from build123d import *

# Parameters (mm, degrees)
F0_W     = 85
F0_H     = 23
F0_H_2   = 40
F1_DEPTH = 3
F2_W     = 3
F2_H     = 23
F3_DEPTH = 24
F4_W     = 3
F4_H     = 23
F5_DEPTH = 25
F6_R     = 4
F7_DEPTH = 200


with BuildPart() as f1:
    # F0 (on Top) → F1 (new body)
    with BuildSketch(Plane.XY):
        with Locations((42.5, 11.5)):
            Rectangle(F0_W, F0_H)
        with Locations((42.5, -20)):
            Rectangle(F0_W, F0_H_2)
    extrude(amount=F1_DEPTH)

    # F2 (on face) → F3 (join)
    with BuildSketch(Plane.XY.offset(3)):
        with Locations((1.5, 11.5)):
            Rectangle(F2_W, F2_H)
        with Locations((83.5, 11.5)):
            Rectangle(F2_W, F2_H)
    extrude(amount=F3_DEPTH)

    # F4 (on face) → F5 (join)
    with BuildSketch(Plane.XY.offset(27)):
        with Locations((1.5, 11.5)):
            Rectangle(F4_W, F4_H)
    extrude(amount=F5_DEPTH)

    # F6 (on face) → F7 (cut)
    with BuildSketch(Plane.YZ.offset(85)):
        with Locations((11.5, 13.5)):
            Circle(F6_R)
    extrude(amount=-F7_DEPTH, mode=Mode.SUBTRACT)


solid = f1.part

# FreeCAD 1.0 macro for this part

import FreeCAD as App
import Part
import Sketcher
Q = App.Units.Quantity


def add_polygon(sketch, points):
    """Adds a closed chain of lines whose ends are joined by coincident constraints."""
    first, n = sketch.GeometryCount, len(points)
    for a, b in zip(points, points[1:] + points[:1]):
        sketch.addGeometry(Part.LineSegment(App.Vector(*a, 0), App.Vector(*b, 0)), False)
    for i in range(n):
        sketch.addConstraint(Sketcher.Constraint("Coincident", first + i, 2, first + (i + 1) % n, 1))

doc = App.newDocument("Part")
body = doc.addObject("PartDesign::Body", "Body")

# Sketch on XY plane
sketch1 = doc.addObject("Sketcher::SketchObject", "Sketch")
body.addObject(sketch1)
sketch1.AttachmentSupport = (doc.XY_Plane, [""])
sketch1.MapMode = "FlatFace"
add_polygon(sketch1, [(0, 23), (0, -40), (85, -40), (85, 23)])  # lines 0-3
sketch1.addConstraint(Sketcher.Constraint("Vertical", 0))
sketch1.addConstraint(Sketcher.Constraint("Horizontal", 1))
sketch1.addConstraint(Sketcher.Constraint("Vertical", 2))
sketch1.addConstraint(Sketcher.Constraint("Horizontal", 3))
sketch1.addConstraint(Sketcher.Constraint("PointOnObject", 0, 2, -2))
sketch1.addConstraint(Sketcher.Constraint("DistanceX", 1, 1, 1, 2, Q("85 mm")))
sketch1.addConstraint(Sketcher.Constraint("DistanceY", 0, 2, 0, 1, Q("63 mm")))
sketch1.addConstraint(Sketcher.Constraint("DistanceY", 0, 2, -1, 1, Q("40 mm")))
pad1 = doc.addObject("PartDesign::Pad", "Pad")
body.addObject(pad1)
pad1.Profile = sketch1
pad1.Length = 3

# Sketch on XY plane
sketch2 = doc.addObject("Sketcher::SketchObject", "Sketch001")
body.addObject(sketch2)
sketch2.AttachmentSupport = (doc.XY_Plane, [""])
sketch2.MapMode = "FlatFace"
sketch2.AttachmentOffset = App.Placement(App.Vector(0, 0, 3), App.Rotation())
add_polygon(sketch2, [(0, 23), (0, 0), (3, 0), (3, 23)])  # lines 0-3
add_polygon(sketch2, [(82, 23), (82, 0), (85, 0), (85, 23)])  # lines 4-7
sketch2.addConstraint(Sketcher.Constraint("Vertical", 0))
sketch2.addConstraint(Sketcher.Constraint("Horizontal", 1))
sketch2.addConstraint(Sketcher.Constraint("Vertical", 2))
sketch2.addConstraint(Sketcher.Constraint("Horizontal", 3))
sketch2.addConstraint(Sketcher.Constraint("Vertical", 4))
sketch2.addConstraint(Sketcher.Constraint("Horizontal", 5))
sketch2.addConstraint(Sketcher.Constraint("Vertical", 6))
sketch2.addConstraint(Sketcher.Constraint("Horizontal", 7))
sketch2.addConstraint(Sketcher.Constraint("Coincident", 0, 2, -1, 1))
sketch2.addConstraint(Sketcher.Constraint("PointOnObject", 4, 2, -1))
sketch2.addConstraint(Sketcher.Constraint("Horizontal", 3, 2, 6, 2))
sketch2.addConstraint(Sketcher.Constraint("Equal", 3, 5))
sketch2.addConstraint(Sketcher.Constraint("DistanceX", 1, 1, 1, 2, Q("3 mm")))
sketch2.addConstraint(Sketcher.Constraint("DistanceY", 0, 2, 0, 1, Q("23 mm")))
sketch2.addConstraint(Sketcher.Constraint("DistanceX", -1, 1, 4, 2, Q("82 mm")))
pad2 = doc.addObject("PartDesign::Pad", "Pad001")
body.addObject(pad2)
pad2.Profile = sketch2
pad2.Length = 24

# Sketch on XY plane
sketch3 = doc.addObject("Sketcher::SketchObject", "Sketch002")
body.addObject(sketch3)
sketch3.AttachmentSupport = (doc.XY_Plane, [""])
sketch3.MapMode = "FlatFace"
sketch3.AttachmentOffset = App.Placement(App.Vector(0, 0, 27), App.Rotation())
add_polygon(sketch3, [(0, 23), (0, 0), (3, 0), (3, 23)])  # lines 0-3
sketch3.addConstraint(Sketcher.Constraint("Vertical", 0))
sketch3.addConstraint(Sketcher.Constraint("Horizontal", 1))
sketch3.addConstraint(Sketcher.Constraint("Vertical", 2))
sketch3.addConstraint(Sketcher.Constraint("Horizontal", 3))
sketch3.addConstraint(Sketcher.Constraint("Coincident", 0, 2, -1, 1))
sketch3.addConstraint(Sketcher.Constraint("DistanceX", 1, 1, 1, 2, Q("3 mm")))
sketch3.addConstraint(Sketcher.Constraint("DistanceY", 0, 2, 0, 1, Q("23 mm")))
pad3 = doc.addObject("PartDesign::Pad", "Pad002")
body.addObject(pad3)
pad3.Profile = sketch3
pad3.Length = 25

# Sketch on YZ plane
sketch4 = doc.addObject("Sketcher::SketchObject", "Sketch003")
body.addObject(sketch4)
sketch4.AttachmentSupport = (doc.YZ_Plane, [""])
sketch4.MapMode = "FlatFace"
sketch4.AttachmentOffset = App.Placement(App.Vector(0, 0, 85), App.Rotation())
sketch4.addGeometry(Part.Circle(App.Vector(11.5, 13.5, 0), App.Vector(0, 0, 1), 4), False)
sketch4.addConstraint(Sketcher.Constraint("Diameter", 0, Q("8 mm")))
sketch4.addConstraint(Sketcher.Constraint("DistanceX", -1, 1, 0, 3, Q("11.5 mm")))
sketch4.addConstraint(Sketcher.Constraint("DistanceY", -1, 1, 0, 3, Q("13.5 mm")))
pocket1 = doc.addObject("PartDesign::Pocket", "Pocket")
body.addObject(pocket1)
pocket1.Profile = sketch4
pocket1.Length = 200

doc.recompute()
